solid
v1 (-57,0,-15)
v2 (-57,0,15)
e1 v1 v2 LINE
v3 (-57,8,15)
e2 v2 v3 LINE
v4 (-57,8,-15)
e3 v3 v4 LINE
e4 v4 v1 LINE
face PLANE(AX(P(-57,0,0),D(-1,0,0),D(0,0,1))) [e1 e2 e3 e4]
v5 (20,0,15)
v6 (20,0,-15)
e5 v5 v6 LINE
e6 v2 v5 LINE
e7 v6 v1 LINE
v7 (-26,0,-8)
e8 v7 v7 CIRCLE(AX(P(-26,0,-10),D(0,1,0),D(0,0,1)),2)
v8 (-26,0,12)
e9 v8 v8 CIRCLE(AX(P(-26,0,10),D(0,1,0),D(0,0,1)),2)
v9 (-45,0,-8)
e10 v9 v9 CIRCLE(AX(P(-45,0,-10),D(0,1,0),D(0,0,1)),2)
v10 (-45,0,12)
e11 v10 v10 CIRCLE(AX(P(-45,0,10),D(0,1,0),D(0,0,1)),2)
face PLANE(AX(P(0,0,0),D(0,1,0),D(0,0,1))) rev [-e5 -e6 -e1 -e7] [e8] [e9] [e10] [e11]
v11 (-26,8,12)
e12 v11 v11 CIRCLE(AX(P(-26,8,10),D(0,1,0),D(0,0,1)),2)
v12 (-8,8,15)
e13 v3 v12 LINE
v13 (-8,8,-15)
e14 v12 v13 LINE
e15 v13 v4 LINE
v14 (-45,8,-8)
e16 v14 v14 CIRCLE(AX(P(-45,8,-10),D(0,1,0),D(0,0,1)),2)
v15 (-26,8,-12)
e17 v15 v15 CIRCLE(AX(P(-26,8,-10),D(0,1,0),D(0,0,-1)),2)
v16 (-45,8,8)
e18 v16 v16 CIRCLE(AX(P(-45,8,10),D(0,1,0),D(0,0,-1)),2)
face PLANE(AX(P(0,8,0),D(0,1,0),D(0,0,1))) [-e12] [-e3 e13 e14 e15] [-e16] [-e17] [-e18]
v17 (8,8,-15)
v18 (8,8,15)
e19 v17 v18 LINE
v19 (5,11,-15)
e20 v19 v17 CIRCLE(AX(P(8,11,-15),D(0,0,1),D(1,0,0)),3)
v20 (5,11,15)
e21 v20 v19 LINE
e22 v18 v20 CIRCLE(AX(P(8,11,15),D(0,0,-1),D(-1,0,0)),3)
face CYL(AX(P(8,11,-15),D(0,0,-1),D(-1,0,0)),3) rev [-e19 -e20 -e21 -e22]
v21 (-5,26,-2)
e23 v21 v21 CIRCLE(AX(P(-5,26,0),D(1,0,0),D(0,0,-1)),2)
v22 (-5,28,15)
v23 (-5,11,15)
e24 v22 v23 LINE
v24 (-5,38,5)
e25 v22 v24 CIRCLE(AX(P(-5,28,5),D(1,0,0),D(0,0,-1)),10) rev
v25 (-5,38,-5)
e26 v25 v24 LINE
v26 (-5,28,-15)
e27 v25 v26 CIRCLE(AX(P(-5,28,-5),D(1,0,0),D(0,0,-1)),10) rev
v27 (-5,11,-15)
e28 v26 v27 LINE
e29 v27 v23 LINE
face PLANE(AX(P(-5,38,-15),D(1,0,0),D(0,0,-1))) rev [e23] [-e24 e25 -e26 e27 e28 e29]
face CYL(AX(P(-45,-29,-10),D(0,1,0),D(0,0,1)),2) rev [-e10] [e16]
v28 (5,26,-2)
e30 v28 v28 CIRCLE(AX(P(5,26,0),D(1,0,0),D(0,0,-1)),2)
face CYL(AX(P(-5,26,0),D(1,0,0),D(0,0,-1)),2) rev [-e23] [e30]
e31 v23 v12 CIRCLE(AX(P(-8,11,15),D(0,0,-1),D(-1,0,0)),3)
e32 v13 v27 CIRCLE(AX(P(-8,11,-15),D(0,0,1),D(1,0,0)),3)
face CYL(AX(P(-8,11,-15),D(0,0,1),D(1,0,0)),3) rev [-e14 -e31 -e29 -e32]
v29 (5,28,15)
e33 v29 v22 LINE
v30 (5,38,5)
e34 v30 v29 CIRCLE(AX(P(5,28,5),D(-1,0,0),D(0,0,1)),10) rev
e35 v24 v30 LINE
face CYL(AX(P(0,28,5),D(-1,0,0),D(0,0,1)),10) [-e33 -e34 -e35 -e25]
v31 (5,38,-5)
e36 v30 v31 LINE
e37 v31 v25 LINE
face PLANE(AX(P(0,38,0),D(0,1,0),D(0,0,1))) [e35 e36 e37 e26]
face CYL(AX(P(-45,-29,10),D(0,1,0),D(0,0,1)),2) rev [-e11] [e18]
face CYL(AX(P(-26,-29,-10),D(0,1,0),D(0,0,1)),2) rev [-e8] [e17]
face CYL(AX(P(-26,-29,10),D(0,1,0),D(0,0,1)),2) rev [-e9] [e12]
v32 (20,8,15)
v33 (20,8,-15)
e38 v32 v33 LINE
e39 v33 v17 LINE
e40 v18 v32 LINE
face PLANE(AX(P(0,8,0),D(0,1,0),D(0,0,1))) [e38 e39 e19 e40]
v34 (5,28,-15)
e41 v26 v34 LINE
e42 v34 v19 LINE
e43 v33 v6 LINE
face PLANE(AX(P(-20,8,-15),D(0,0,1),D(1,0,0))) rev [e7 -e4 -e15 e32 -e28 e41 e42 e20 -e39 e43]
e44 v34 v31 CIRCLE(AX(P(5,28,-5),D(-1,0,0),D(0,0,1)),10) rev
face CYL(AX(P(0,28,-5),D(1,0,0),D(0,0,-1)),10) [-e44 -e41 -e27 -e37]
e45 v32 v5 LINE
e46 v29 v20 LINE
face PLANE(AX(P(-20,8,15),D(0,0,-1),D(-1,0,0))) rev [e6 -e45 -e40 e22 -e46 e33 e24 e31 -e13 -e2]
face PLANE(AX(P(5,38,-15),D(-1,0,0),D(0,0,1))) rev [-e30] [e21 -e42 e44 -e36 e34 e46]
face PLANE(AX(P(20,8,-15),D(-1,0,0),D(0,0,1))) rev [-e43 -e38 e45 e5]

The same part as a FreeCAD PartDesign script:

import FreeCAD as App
import Part
import Sketcher
Q = App.Units.Quantity


def edges_at(feature, points):
    """Names of the edges that pass closest to the given points."""
    edges = feature.Shape.Edges
    near = lambda p: min(range(len(edges)), key=lambda i: edges[i].distToShape(Part.Vertex(*p))[0])
    return sorted({f"Edge{near(p) + 1}" for p in points})

doc = App.newDocument("Part")
body = doc.addObject("PartDesign::Body", "Body")

sketch1 = body.newObject("Sketcher::SketchObject", "Sketch")
sketch1.AttachmentSupport = (doc.getObject("XZ_Plane"), [""])
sketch1.MapMode = "FlatFace"
sketch1.addGeometry([
    Part.LineSegment(App.Vector(-20, -15, 0), App.Vector(-20, 15, 0)),
    Part.LineSegment(App.Vector(-20, 15, 0), App.Vector(20, 15, 0)),
    Part.LineSegment(App.Vector(20, 15, 0), App.Vector(20, -15, 0)),
    Part.LineSegment(App.Vector(20, -15, 0), App.Vector(-20, -15, 0)),
], False)
sketch1.addConstraint([
    Sketcher.Constraint("Coincident", 0, 2, 1, 1),
    Sketcher.Constraint("Coincident", 1, 2, 2, 1),
    Sketcher.Constraint("Coincident", 2, 2, 3, 1),
    Sketcher.Constraint("Coincident", 3, 2, 0, 1),
    Sketcher.Constraint("Vertical", 0),
    Sketcher.Constraint("Horizontal", 1),
    Sketcher.Constraint("Vertical", 2),
    Sketcher.Constraint("Horizontal", 3),
    Sketcher.Constraint("Symmetric", 0, 2, 2, 2, -1, 1),
    Sketcher.Constraint("DistanceX", 1, 1, 1, 2, Q("40 mm")),
    Sketcher.Constraint("DistanceY", 0, 1, 0, 2, Q("30 mm")),
])
pad1 = body.newObject("PartDesign::Pad", "Pad")
pad1.Profile = sketch1
pad1.Length = 8
pad1.Reversed = True

sketch2 = body.newObject("Sketcher::SketchObject", "Sketch001")
sketch2.AttachmentSupport = (doc.getObject("XZ_Plane"), [""])
sketch2.MapMode = "FlatFace"
sketch2.AttachmentOffset = App.Placement(App.Vector(0, 0, -8), App.Rotation())
sketch2.addGeometry([
    Part.LineSegment(App.Vector(-5, -15, 0), App.Vector(-5, 15, 0)),
    Part.LineSegment(App.Vector(-5, 15, 0), App.Vector(5, 15, 0)),
    Part.LineSegment(App.Vector(5, 15, 0), App.Vector(5, -15, 0)),
    Part.LineSegment(App.Vector(5, -15, 0), App.Vector(-5, -15, 0)),
], False)
sketch2.addConstraint([
    Sketcher.Constraint("Coincident", 0, 2, 1, 1),
    Sketcher.Constraint("Coincident", 1, 2, 2, 1),
    Sketcher.Constraint("Coincident", 2, 2, 3, 1),
    Sketcher.Constraint("Coincident", 3, 2, 0, 1),
    Sketcher.Constraint("Vertical", 0),
    Sketcher.Constraint("Horizontal", 1),
    Sketcher.Constraint("Vertical", 2),
    Sketcher.Constraint("Horizontal", 3),
    Sketcher.Constraint("Symmetric", 0, 2, 2, 2, -1, 1),
    Sketcher.Constraint("DistanceX", 1, 1, 1, 2, Q("10 mm")),
    Sketcher.Constraint("DistanceY", 0, 1, 0, 2, Q("30 mm")),
])
pad2 = body.newObject("PartDesign::Pad", "Pad001")
pad2.Profile = sketch2
pad2.Length = 30
pad2.Reversed = True
doc.recompute()

fillet = body.newObject("PartDesign::Fillet", "Fillet")
fillet.Base = (pad2, edges_at(pad2, [(5, 8, 0), (-5, 8, 0)]))
fillet.Radius = 3

sketch3 = body.newObject("Sketcher::SketchObject", "Sketch002")
sketch3.AttachmentSupport = (doc.getObject("YZ_Plane"), [""])
sketch3.MapMode = "FlatFace"
sketch3.AttachmentOffset = App.Placement(App.Vector(0, 0, 5), App.Rotation())
sketch3.addGeometry(Part.Circle(App.Vector(26, 0, 0), App.Vector(0, 0, 1), 2), False)
sketch3.addConstraint([
    Sketcher.Constraint("PointOnObject", 0, 3, -1),
    Sketcher.Constraint("Diameter", 0, Q("4 mm")),
    Sketcher.Constraint("DistanceX", -1, 1, 0, 3, Q("26 mm")),
])
pocket1 = body.newObject("PartDesign::Pocket", "Pocket")
pocket1.Profile = sketch3
pocket1.Length = 10
doc.recompute()

fillet2 = body.newObject("PartDesign::Fillet", "Fillet001")
fillet2.Base = (pocket1, edges_at(pocket1, [(0, 38, -15), (0, 38, 15)]))
fillet2.Radius = 10

sketch4 = body.newObject("Sketcher::SketchObject", "Sketch003")
sketch4.AttachmentSupport = (doc.getObject("YZ_Plane"), [""])
sketch4.MapMode = "FlatFace"
sketch4.AttachmentOffset = App.Placement(App.Vector(0, 0, -20), App.Rotation())
sketch4.addGeometry([
    Part.LineSegment(App.Vector(8, -15, 0), App.Vector(0, -15, 0)),
    Part.LineSegment(App.Vector(0, -15, 0), App.Vector(0, 15, 0)),
    Part.LineSegment(App.Vector(0, 15, 0), App.Vector(8, 15, 0)),
    Part.LineSegment(App.Vector(8, 15, 0), App.Vector(8, -15, 0)),
], False)
sketch4.addConstraint([
    Sketcher.Constraint("Coincident", 0, 2, 1, 1),
    Sketcher.Constraint("Coincident", 1, 2, 2, 1),
    Sketcher.Constraint("Coincident", 2, 2, 3, 1),
    Sketcher.Constraint("Coincident", 3, 2, 0, 1),
    Sketcher.Constraint("Horizontal", 0),
    Sketcher.Constraint("Vertical", 1),
    Sketcher.Constraint("Horizontal", 2),
    Sketcher.Constraint("Vertical", 3),
    Sketcher.Constraint("Symmetric", 0, 2, 1, 2, -1, 1),
    Sketcher.Constraint("DistanceX", 0, 2, 0, 1, Q("8 mm")),
    Sketcher.Constraint("DistanceY", 1, 1, 1, 2, Q("30 mm")),
])
pad3 = body.newObject("PartDesign::Pad", "Pad002")
pad3.Profile = sketch4
pad3.Length = 37
pad3.Reversed = True

sketch5 = body.newObject("Sketcher::SketchObject", "Sketch004")
sketch5.AttachmentSupport = (doc.getObject("XZ_Plane"), [""])
sketch5.MapMode = "FlatFace"
sketch5.AttachmentOffset = App.Placement(App.Vector(0, 0, -8), App.Rotation())
sketch5.addGeometry([
    Part.Circle(App.Vector(-45, -10, 0), App.Vector(0, 0, 1), 2),
    Part.Circle(App.Vector(-45, 10, 0), App.Vector(0, 0, 1), 2),
    Part.Circle(App.Vector(-26, 10, 0), App.Vector(0, 0, 1), 2),
    Part.Circle(App.Vector(-26, -10, 0), App.Vector(0, 0, 1), 2),
], False)
sketch5.addConstraint([
    Sketcher.Constraint("Equal", 0, 1),
    Sketcher.Constraint("Equal", 1, 2),
    Sketcher.Constraint("Equal", 2, 3),
    Sketcher.Constraint("Symmetric", 0, 3, 1, 3, -1),
    Sketcher.Constraint("Symmetric", 2, 3, 3, 3, -1),
    Sketcher.Constraint("Horizontal", 1, 3, 2, 3),
    Sketcher.Constraint("Diameter", 0, Q("4 mm")),
    Sketcher.Constraint("DistanceX", 0, 3, -1, 1, Q("45 mm")),
    Sketcher.Constraint("DistanceY", 0, 3, -1, 1, Q("10 mm")),
    Sketcher.Constraint("DistanceX", 2, 3, -1, 1, Q("26 mm")),
])
pocket2 = body.newObject("PartDesign::Pocket", "Pocket001")
pocket2.Profile = sketch5
pocket2.Length = 37
pocket2.Reversed = True

doc.recompute()
